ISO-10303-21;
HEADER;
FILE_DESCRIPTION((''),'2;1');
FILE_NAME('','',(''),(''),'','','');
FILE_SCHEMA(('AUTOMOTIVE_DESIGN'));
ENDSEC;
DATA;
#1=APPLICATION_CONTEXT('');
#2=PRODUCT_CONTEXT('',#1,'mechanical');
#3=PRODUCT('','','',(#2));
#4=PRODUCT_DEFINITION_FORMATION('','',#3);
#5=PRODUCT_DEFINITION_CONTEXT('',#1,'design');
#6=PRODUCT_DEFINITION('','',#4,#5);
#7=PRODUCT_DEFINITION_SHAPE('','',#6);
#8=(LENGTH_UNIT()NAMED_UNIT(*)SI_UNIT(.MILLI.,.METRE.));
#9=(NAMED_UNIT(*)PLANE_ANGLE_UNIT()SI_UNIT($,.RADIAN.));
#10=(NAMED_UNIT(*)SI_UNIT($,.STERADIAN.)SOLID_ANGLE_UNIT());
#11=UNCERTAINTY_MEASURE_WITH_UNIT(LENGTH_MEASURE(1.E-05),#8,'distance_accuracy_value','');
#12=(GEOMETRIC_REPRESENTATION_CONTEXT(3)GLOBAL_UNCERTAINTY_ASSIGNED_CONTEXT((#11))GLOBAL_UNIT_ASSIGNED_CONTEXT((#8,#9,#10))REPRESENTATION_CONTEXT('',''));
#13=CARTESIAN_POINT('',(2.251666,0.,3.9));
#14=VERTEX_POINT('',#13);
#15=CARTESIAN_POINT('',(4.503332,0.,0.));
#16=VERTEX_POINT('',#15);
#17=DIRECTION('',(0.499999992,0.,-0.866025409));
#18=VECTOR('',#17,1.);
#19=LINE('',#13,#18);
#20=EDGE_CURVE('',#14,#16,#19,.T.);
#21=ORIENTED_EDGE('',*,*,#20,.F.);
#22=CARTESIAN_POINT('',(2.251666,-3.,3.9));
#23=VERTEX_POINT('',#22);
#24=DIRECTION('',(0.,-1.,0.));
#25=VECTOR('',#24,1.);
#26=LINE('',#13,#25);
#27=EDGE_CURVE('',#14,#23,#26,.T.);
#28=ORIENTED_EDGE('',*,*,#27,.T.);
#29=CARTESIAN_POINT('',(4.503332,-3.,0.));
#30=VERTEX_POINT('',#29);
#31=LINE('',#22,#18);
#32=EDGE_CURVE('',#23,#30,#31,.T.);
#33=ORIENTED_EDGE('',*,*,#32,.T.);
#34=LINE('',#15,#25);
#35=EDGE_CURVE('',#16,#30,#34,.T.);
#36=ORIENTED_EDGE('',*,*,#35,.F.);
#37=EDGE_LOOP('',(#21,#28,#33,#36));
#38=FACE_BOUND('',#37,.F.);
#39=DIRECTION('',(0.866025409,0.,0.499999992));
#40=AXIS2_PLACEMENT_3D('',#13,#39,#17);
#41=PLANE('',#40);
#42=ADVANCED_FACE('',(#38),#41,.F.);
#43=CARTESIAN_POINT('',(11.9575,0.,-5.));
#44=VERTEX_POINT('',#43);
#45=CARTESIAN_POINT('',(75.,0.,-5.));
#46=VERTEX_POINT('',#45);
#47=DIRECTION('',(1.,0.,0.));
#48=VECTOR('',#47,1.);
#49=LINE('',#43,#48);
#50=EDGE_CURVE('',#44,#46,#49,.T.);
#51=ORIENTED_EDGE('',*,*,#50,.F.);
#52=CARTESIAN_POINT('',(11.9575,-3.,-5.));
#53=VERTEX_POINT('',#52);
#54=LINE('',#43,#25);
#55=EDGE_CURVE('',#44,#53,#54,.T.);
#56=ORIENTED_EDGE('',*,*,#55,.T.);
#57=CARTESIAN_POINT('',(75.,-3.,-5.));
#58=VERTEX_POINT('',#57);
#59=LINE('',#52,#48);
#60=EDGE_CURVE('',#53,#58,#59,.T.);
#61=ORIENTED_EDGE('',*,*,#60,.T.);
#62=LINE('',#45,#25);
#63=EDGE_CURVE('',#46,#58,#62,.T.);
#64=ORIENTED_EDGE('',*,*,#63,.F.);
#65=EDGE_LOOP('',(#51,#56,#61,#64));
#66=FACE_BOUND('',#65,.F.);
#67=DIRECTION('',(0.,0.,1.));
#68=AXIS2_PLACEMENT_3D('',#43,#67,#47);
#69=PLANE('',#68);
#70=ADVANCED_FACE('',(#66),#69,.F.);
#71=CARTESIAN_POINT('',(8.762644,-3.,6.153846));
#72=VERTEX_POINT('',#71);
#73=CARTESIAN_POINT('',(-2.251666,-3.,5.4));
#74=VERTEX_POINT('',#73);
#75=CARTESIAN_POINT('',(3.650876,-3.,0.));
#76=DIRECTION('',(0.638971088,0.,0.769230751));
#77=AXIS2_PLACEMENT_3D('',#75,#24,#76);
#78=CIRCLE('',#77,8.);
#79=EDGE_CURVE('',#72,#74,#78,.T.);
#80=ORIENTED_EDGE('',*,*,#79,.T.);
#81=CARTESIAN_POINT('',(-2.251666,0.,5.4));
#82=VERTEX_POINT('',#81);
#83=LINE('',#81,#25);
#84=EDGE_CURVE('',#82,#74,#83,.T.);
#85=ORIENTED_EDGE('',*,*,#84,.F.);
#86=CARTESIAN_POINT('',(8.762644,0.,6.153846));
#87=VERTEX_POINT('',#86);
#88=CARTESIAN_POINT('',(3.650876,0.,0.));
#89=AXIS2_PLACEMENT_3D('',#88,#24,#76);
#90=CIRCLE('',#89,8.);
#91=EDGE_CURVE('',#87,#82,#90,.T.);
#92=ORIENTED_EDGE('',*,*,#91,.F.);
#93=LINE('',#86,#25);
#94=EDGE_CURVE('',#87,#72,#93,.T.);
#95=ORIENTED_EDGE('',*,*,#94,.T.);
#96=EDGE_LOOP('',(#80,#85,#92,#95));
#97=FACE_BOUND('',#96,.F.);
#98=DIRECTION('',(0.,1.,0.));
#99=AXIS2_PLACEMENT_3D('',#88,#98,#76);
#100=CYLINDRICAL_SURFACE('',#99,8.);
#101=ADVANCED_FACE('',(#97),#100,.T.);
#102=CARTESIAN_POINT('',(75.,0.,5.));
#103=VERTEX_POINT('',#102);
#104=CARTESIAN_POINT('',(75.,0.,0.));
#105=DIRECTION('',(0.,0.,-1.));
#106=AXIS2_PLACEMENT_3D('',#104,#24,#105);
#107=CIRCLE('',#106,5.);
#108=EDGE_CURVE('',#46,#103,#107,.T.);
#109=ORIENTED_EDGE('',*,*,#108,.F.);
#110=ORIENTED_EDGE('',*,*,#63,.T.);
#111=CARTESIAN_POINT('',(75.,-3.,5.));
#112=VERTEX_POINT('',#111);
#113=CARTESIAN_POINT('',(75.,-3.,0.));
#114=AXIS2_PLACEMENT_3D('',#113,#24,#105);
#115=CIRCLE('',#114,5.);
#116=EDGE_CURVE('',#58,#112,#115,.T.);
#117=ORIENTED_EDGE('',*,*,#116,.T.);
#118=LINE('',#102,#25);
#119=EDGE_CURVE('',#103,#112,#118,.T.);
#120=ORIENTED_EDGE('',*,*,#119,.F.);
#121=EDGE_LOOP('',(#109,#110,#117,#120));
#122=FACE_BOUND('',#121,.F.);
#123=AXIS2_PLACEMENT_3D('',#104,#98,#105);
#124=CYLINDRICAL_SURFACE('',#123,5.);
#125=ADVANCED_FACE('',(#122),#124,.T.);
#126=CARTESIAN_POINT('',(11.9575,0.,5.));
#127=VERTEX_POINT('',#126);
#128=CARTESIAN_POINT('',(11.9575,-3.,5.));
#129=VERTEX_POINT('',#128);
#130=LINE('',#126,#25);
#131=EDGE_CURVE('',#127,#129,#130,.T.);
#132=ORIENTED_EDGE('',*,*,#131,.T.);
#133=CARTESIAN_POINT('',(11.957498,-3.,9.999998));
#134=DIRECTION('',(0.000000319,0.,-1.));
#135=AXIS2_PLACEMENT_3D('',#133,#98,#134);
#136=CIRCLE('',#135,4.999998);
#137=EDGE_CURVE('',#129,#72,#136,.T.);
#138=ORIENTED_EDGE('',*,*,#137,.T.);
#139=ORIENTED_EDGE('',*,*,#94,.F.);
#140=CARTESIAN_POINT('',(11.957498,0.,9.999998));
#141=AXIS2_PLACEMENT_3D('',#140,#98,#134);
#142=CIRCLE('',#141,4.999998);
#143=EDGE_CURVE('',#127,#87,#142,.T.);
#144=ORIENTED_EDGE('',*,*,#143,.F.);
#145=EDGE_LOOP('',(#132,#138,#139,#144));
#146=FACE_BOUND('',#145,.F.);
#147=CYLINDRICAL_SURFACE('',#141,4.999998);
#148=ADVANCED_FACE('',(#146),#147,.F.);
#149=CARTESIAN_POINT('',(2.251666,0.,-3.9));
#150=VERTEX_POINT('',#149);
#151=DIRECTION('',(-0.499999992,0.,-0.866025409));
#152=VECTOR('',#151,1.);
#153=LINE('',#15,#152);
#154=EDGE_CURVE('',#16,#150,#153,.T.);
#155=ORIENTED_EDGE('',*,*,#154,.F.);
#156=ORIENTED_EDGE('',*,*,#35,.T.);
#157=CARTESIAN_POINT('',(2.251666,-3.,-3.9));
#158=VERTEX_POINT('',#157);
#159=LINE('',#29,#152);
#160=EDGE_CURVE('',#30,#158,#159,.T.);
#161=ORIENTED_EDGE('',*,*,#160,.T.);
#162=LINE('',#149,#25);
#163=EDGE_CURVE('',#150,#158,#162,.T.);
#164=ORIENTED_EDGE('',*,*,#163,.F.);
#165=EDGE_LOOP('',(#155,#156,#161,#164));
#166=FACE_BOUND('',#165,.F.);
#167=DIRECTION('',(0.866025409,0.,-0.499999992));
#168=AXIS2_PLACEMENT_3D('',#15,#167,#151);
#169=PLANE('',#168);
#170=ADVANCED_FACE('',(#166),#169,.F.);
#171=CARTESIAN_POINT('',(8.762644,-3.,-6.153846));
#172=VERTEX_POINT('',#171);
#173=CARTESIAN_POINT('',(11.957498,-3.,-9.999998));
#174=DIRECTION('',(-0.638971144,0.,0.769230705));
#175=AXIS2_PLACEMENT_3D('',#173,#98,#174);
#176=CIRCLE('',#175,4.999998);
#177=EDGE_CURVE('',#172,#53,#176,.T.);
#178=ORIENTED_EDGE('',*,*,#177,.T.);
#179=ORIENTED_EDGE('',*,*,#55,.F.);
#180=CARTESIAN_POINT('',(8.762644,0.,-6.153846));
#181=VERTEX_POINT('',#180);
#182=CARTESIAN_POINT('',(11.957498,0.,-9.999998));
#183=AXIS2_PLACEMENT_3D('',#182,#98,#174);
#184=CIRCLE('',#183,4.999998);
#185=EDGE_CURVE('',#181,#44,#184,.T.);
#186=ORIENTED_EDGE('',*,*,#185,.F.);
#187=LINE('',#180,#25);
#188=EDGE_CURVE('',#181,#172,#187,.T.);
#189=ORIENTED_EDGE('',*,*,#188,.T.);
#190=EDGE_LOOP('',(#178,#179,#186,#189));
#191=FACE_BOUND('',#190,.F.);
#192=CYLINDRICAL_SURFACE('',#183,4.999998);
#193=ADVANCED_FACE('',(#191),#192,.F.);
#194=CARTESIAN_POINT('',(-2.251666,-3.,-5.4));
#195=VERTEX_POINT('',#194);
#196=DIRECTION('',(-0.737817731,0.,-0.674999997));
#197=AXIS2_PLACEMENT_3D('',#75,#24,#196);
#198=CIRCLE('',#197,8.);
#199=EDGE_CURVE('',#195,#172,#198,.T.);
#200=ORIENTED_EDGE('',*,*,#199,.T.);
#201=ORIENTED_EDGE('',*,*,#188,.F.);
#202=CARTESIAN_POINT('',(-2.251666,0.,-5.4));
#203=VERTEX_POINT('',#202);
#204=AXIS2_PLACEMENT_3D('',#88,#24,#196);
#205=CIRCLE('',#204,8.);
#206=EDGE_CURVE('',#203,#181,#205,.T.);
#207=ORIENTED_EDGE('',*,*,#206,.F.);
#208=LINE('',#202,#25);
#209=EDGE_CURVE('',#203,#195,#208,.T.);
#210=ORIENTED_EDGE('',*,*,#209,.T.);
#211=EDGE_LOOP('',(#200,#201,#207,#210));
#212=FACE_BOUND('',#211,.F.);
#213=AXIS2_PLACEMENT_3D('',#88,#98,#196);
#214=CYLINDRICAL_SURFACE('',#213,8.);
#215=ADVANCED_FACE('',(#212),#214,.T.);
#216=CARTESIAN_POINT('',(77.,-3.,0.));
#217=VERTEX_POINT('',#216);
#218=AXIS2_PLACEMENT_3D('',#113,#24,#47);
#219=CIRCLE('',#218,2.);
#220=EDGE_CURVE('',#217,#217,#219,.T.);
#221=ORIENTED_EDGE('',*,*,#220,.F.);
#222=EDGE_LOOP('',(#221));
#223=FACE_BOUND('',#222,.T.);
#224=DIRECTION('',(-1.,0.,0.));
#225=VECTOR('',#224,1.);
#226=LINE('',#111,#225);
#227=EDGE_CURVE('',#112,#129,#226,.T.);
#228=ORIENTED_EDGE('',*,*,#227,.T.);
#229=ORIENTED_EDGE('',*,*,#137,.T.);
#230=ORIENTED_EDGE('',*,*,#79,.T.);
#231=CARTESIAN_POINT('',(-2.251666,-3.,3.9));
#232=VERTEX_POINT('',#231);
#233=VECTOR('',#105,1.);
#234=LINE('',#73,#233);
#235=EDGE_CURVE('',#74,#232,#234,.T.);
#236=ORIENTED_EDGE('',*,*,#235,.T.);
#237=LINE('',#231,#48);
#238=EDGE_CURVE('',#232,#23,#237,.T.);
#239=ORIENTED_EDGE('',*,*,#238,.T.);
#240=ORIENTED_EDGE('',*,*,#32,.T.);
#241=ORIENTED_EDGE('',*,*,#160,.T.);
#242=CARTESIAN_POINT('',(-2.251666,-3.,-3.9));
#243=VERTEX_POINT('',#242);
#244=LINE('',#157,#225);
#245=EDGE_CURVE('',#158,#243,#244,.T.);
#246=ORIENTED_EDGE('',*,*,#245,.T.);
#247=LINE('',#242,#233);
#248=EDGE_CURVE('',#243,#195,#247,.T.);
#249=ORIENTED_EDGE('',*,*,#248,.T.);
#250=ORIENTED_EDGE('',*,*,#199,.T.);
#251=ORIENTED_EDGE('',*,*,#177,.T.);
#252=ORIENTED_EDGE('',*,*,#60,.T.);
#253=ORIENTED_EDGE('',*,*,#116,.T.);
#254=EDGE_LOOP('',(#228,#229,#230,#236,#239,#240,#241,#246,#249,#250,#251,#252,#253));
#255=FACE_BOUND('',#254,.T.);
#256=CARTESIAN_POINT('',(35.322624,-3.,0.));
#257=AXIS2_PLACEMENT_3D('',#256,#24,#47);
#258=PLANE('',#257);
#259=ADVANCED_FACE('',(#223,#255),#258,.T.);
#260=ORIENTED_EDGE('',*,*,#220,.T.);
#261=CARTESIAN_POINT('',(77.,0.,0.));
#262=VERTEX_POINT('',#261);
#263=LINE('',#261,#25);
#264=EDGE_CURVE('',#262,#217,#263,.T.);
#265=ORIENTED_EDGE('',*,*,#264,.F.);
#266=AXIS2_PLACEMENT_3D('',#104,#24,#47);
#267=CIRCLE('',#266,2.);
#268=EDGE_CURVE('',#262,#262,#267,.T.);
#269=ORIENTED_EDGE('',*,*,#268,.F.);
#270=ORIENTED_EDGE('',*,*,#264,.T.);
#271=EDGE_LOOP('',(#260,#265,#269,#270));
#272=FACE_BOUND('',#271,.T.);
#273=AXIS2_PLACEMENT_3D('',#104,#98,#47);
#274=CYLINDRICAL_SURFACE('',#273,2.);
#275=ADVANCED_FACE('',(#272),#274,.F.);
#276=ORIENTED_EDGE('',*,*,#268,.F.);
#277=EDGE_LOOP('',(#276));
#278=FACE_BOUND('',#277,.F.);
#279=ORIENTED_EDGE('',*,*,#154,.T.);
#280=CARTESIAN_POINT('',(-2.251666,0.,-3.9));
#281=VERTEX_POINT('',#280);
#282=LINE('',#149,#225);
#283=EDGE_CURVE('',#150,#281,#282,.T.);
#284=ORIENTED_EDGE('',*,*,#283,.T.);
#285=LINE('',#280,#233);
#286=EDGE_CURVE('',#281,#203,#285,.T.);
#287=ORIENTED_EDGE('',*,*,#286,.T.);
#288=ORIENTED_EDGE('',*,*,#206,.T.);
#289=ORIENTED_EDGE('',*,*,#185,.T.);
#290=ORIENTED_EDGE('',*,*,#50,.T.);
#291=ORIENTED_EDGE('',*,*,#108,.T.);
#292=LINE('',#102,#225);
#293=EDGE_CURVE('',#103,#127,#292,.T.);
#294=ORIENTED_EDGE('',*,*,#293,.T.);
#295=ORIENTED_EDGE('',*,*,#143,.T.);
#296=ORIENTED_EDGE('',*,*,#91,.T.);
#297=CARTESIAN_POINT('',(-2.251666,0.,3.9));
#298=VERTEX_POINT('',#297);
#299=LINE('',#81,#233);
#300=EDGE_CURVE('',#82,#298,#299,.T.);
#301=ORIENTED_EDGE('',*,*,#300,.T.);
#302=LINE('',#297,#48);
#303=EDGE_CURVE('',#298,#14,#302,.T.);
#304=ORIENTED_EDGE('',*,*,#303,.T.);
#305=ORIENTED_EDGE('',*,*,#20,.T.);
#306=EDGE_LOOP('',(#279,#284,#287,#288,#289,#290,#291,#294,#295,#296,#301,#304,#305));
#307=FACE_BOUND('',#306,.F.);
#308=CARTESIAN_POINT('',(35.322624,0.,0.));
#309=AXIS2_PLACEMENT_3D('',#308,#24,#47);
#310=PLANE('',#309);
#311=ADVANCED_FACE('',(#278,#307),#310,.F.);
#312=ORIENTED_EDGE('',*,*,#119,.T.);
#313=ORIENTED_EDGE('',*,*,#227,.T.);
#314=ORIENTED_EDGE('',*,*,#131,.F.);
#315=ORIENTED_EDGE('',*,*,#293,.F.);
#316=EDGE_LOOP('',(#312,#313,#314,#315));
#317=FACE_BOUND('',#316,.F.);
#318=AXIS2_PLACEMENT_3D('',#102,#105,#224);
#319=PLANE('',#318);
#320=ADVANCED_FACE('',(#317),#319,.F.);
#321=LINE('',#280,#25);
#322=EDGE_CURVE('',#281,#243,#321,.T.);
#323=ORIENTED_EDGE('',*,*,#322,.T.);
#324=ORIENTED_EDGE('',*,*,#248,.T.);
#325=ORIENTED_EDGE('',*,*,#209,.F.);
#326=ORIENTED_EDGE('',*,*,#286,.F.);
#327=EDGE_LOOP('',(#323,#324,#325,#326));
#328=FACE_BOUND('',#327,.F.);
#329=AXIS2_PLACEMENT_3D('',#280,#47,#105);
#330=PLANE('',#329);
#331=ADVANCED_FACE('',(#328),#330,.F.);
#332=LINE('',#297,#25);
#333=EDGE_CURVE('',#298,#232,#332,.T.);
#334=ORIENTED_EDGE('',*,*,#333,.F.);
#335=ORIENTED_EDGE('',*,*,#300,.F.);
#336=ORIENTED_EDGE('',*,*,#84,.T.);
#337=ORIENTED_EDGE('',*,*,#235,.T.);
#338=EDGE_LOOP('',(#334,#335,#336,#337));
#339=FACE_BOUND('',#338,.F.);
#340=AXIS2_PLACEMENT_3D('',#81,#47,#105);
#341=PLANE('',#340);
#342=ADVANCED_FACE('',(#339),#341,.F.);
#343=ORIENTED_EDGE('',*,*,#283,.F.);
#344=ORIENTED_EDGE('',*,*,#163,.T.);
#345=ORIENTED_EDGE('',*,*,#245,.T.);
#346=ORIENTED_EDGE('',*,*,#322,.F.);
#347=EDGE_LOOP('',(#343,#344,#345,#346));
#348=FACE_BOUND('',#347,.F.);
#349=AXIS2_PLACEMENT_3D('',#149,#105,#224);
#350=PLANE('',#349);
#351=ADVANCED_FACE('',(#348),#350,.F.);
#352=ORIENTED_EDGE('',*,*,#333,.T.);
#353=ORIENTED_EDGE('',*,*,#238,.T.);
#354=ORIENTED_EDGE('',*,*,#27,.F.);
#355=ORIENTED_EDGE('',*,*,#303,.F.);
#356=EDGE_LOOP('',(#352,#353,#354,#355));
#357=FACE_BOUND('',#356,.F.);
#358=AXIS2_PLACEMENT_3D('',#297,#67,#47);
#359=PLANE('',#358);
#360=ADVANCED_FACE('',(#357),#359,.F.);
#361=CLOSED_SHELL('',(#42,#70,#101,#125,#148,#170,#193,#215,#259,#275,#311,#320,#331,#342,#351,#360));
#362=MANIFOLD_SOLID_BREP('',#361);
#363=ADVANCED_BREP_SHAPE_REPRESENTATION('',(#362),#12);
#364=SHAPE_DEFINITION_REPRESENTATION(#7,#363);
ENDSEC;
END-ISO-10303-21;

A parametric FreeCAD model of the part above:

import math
import FreeCAD as App
import Part
import Sketcher
Q = App.Units.Quantity

doc = App.newDocument("Part")
body = doc.addObject("PartDesign::Body", "Body")

sketch1 = doc.addObject("Sketcher::SketchObject", "Sketch")
body.addObject(sketch1)
sketch1.AttachmentSupport = (doc.XZ_Plane, [""])
sketch1.MapMode = "FlatFace"
sketch1.addGeometry([
    Part.LineSegment(App.Vector(4.503332, 0, 0), App.Vector(2.251666, -3.9, 0)),
    Part.LineSegment(App.Vector(2.251666, -3.9, 0), App.Vector(-2.251666, -3.9, 0)),
    Part.LineSegment(App.Vector(-2.251666, -3.9, 0), App.Vector(-2.251666, -5.4, 0)),
    Part.ArcOfCircle(Part.Circle(App.Vector(3.650876, 0, 0), App.Vector(0, 0, 1), 8), math.radians(-137.54585), math.radians(-50.284861)),
    Part.ArcOfCircle(Part.Circle(App.Vector(11.957498, -9.999998, 0), App.Vector(0, 0, 1), 4.999998), math.radians(89.999982), math.radians(129.715143)),
    Part.LineSegment(App.Vector(11.9575, -5, 0), App.Vector(75, -5, 0)),
    Part.ArcOfCircle(Part.Circle(App.Vector(75, 0, 0), App.Vector(0, 0, 1), 5), math.radians(-90), math.radians(90)),
    Part.LineSegment(App.Vector(75, 5, 0), App.Vector(11.9575, 5, 0)),
    Part.ArcOfCircle(Part.Circle(App.Vector(11.957498, 9.999998, 0), App.Vector(0, 0, 1), 4.999998), math.radians(-129.715143), math.radians(-89.999982)),
    Part.ArcOfCircle(Part.Circle(App.Vector(3.650876, 0, 0), App.Vector(0, 0, 1), 8), math.radians(50.284861), math.radians(137.54585)),
    Part.LineSegment(App.Vector(-2.251666, 5.4, 0), App.Vector(-2.251666, 3.9, 0)),
    Part.LineSegment(App.Vector(-2.251666, 3.9, 0), App.Vector(2.251666, 3.9, 0)),
    Part.LineSegment(App.Vector(2.251666, 3.9, 0), App.Vector(4.503332, 0, 0)),
    Part.Circle(App.Vector(75, 0, 0), App.Vector(0, 0, 1), 2),
], False)
sketch1.addConstraint([
    Sketcher.Constraint("Coincident", 0, 2, 1, 1),
    Sketcher.Constraint("Coincident", 1, 2, 2, 1),
    Sketcher.Constraint("Coincident", 2, 2, 3, 1),
    Sketcher.Constraint("Tangent", 3, 2, 4, 2),
    Sketcher.Constraint("Tangent", 4, 1, 5, 1),
    Sketcher.Constraint("Tangent", 5, 2, 6, 1),
    Sketcher.Constraint("Tangent", 6, 2, 7, 1),
    Sketcher.Constraint("Tangent", 7, 2, 8, 2),
    Sketcher.Constraint("Tangent", 8, 1, 9, 1),
    Sketcher.Constraint("Coincident", 9, 2, 10, 1),
    Sketcher.Constraint("Coincident", 10, 2, 11, 1),
    Sketcher.Constraint("Coincident", 11, 2, 12, 1),
    Sketcher.Constraint("Coincident", 12, 2, 0, 1),
    Sketcher.Constraint("Horizontal", 1),
    Sketcher.Constraint("Vertical", 2),
    Sketcher.Constraint("Horizontal", 5),
    Sketcher.Constraint("Horizontal", 7),
    Sketcher.Constraint("Vertical", 10),
    Sketcher.Constraint("Horizontal", 11),
    Sketcher.Constraint("Coincident", 9, 3, 3, 3),
    Sketcher.Constraint("Coincident", 13, 3, 6, 3),
    Sketcher.Constraint("Equal", 4, 8),
    Sketcher.Constraint("Equal", 3, 9),
    Sketcher.Constraint("Symmetric", 0, 2, 10, 2, -1, 1),
    Sketcher.Constraint("Symmetric", 4, 3, 8, 3, -1),
    Sketcher.Constraint("PointOnObject", 12, 2, -1),
    Sketcher.Constraint("Vertical", 2, 2, 9, 2),
    Sketcher.Constraint("Vertical", 0, 2, 11, 2),
    Sketcher.Constraint("Diameter", 13, 4.0),
    Sketcher.Constraint("Radius", 3, 8.0),
    Sketcher.Constraint("Radius", 6, 5.0),
    Sketcher.Constraint("Angle", 0, Q("-119.999999 deg")),
    Sketcher.Constraint("DistanceY", 2, 2, 2, 1, 1.5),
    Sketcher.Constraint("DistanceX", -1, 1, 6, 3, 75.0),
    Sketcher.Constraint("DistanceY", 3, 3, 8, 3, 9.999998),
    Sketcher.Constraint("DistanceY", 0, 2, -1, 1, 3.9),
    Sketcher.Constraint("DistanceX", 5, 1, 5, 2, 63.0425),
])
pad1 = doc.addObject("PartDesign::Pad", "Pad")
body.addObject(pad1)
pad1.Profile = sketch1
pad1.Length = 3

doc.recompute()
